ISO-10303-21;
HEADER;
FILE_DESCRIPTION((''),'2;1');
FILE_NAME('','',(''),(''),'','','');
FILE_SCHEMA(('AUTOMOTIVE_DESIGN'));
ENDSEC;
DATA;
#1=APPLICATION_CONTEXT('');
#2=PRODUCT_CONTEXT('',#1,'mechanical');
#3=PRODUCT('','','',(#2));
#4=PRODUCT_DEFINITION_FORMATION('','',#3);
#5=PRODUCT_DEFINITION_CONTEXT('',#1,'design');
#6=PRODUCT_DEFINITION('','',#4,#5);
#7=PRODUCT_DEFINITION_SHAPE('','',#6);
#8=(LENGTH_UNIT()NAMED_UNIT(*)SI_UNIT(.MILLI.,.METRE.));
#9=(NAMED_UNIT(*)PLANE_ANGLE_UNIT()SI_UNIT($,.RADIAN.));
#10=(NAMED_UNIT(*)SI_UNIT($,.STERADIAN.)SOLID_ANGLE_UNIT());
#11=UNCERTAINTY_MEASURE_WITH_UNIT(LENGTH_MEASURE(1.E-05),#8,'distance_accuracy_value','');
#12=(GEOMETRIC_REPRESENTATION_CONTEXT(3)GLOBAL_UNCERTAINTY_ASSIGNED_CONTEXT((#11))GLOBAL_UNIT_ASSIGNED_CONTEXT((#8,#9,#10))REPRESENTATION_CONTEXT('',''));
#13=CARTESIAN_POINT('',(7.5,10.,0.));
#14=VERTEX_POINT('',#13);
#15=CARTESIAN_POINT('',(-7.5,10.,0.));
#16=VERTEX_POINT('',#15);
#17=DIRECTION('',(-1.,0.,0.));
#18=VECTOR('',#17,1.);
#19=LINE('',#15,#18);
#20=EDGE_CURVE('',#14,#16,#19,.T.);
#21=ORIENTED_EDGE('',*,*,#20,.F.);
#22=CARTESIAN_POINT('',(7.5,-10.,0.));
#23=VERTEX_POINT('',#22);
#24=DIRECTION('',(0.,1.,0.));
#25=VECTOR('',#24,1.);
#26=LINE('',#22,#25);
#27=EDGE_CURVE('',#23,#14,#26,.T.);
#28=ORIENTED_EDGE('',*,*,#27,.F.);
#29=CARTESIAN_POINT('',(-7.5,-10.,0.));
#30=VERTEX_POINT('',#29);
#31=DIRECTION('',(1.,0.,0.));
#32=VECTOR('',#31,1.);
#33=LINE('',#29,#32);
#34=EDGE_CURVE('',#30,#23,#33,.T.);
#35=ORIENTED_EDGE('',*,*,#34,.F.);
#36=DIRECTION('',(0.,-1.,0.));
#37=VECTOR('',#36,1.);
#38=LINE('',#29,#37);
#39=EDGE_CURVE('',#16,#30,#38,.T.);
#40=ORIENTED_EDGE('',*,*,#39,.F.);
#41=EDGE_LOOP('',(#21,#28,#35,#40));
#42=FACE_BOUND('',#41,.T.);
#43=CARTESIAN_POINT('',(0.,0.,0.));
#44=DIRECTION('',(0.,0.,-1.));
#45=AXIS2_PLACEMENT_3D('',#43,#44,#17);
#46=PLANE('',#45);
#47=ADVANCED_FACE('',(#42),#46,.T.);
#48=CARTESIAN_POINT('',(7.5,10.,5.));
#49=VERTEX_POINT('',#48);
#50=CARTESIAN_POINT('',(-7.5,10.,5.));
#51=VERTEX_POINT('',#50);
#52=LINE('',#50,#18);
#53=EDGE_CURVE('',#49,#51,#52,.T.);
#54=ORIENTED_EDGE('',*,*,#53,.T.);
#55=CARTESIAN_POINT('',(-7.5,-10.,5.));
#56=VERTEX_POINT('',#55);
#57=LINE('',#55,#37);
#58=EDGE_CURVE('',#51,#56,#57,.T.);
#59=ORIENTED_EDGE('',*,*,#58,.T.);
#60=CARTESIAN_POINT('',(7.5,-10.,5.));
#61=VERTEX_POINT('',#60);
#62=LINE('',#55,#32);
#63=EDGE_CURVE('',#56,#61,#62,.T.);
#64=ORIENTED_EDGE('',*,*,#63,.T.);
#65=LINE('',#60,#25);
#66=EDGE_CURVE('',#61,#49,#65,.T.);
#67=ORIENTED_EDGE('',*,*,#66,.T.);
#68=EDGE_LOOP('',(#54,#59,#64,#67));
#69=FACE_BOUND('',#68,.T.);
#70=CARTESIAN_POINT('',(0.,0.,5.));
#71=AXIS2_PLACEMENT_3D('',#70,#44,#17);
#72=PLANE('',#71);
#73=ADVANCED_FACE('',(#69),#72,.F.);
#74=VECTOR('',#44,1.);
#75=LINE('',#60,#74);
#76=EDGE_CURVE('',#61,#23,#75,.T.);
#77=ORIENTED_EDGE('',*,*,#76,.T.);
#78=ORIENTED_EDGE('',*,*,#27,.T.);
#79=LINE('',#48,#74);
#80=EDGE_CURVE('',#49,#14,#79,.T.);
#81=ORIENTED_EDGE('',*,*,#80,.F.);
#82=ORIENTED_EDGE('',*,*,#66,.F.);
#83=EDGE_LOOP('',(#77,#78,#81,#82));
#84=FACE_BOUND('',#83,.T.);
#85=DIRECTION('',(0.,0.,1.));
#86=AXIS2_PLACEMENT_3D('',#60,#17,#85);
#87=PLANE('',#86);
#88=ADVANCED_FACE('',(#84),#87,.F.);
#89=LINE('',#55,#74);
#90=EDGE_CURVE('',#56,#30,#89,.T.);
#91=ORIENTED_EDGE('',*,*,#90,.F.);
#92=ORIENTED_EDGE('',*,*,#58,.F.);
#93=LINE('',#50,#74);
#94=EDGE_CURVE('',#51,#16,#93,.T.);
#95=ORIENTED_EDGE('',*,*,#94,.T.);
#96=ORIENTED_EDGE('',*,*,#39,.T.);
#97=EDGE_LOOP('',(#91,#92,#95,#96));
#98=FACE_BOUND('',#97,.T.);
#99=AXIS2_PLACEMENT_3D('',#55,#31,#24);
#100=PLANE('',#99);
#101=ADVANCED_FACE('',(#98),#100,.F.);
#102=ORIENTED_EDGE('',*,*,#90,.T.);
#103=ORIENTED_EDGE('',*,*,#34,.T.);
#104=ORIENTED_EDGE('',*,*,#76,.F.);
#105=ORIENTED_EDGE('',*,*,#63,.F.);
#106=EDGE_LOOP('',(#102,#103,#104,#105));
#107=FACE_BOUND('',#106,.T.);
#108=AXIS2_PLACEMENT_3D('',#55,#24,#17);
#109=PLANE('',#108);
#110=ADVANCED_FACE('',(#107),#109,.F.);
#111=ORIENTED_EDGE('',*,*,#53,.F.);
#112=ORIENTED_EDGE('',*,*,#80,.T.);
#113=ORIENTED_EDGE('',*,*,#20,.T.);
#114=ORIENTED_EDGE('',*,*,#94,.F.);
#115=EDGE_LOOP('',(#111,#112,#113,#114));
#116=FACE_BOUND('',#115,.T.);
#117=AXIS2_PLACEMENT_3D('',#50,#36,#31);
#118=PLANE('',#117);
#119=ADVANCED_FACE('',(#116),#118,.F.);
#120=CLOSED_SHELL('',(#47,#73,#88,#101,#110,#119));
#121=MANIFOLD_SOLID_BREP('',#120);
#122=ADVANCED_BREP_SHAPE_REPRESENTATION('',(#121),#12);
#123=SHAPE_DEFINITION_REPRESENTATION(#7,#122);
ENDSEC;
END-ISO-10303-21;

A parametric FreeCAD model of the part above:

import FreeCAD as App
import Part
import Sketcher

V = App.Vector


def add_polygon(sketch, points):
    """Adds a closed chain of lines whose ends are joined by coincident constraints."""
    first, n = sketch.GeometryCount, len(points)
    for a, b in zip(points, points[1:] + points[:1]):
        sketch.addGeometry(Part.LineSegment(App.Vector(*a, 0), App.Vector(*b, 0)), False)
    for i in range(n):
        sketch.addConstraint(Sketcher.Constraint("Coincident", first + i, 2, first + (i + 1) % n, 1))

doc = App.newDocument("Part")
body = doc.addObject("PartDesign::Body", "Body")

# Sketch on XY plane
sketch1 = body.newObject("Sketcher::SketchObject", "Sketch")
sketch1.AttachmentSupport = (doc.getObject("XY_Plane"), [""])
sketch1.MapMode = "FlatFace"
add_polygon(sketch1, [(-8, 10), (-8, -10), (8, -10), (8, 10)])  # lines 0-3
sketch1.addConstraint(Sketcher.Constraint("Vertical", 0))
sketch1.addConstraint(Sketcher.Constraint("Horizontal", 1))
sketch1.addConstraint(Sketcher.Constraint("Vertical", 2))
sketch1.addConstraint(Sketcher.Constraint("Horizontal", 3))
sketch1.addConstraint(Sketcher.Constraint("Symmetric", 0, 2, 2, 2, -1, 1))
sketch1.addConstraint(Sketcher.Constraint("DistanceX", 1, 1, 1, 2, 15.0))
sketch1.addConstraint(Sketcher.Constraint("DistanceY", 0, 2, 0, 1, 20.0))
pad1 = body.newObject("PartDesign::Pad", "Pad")
pad1.Profile = sketch1
pad1.Length = 5

doc.recompute()
